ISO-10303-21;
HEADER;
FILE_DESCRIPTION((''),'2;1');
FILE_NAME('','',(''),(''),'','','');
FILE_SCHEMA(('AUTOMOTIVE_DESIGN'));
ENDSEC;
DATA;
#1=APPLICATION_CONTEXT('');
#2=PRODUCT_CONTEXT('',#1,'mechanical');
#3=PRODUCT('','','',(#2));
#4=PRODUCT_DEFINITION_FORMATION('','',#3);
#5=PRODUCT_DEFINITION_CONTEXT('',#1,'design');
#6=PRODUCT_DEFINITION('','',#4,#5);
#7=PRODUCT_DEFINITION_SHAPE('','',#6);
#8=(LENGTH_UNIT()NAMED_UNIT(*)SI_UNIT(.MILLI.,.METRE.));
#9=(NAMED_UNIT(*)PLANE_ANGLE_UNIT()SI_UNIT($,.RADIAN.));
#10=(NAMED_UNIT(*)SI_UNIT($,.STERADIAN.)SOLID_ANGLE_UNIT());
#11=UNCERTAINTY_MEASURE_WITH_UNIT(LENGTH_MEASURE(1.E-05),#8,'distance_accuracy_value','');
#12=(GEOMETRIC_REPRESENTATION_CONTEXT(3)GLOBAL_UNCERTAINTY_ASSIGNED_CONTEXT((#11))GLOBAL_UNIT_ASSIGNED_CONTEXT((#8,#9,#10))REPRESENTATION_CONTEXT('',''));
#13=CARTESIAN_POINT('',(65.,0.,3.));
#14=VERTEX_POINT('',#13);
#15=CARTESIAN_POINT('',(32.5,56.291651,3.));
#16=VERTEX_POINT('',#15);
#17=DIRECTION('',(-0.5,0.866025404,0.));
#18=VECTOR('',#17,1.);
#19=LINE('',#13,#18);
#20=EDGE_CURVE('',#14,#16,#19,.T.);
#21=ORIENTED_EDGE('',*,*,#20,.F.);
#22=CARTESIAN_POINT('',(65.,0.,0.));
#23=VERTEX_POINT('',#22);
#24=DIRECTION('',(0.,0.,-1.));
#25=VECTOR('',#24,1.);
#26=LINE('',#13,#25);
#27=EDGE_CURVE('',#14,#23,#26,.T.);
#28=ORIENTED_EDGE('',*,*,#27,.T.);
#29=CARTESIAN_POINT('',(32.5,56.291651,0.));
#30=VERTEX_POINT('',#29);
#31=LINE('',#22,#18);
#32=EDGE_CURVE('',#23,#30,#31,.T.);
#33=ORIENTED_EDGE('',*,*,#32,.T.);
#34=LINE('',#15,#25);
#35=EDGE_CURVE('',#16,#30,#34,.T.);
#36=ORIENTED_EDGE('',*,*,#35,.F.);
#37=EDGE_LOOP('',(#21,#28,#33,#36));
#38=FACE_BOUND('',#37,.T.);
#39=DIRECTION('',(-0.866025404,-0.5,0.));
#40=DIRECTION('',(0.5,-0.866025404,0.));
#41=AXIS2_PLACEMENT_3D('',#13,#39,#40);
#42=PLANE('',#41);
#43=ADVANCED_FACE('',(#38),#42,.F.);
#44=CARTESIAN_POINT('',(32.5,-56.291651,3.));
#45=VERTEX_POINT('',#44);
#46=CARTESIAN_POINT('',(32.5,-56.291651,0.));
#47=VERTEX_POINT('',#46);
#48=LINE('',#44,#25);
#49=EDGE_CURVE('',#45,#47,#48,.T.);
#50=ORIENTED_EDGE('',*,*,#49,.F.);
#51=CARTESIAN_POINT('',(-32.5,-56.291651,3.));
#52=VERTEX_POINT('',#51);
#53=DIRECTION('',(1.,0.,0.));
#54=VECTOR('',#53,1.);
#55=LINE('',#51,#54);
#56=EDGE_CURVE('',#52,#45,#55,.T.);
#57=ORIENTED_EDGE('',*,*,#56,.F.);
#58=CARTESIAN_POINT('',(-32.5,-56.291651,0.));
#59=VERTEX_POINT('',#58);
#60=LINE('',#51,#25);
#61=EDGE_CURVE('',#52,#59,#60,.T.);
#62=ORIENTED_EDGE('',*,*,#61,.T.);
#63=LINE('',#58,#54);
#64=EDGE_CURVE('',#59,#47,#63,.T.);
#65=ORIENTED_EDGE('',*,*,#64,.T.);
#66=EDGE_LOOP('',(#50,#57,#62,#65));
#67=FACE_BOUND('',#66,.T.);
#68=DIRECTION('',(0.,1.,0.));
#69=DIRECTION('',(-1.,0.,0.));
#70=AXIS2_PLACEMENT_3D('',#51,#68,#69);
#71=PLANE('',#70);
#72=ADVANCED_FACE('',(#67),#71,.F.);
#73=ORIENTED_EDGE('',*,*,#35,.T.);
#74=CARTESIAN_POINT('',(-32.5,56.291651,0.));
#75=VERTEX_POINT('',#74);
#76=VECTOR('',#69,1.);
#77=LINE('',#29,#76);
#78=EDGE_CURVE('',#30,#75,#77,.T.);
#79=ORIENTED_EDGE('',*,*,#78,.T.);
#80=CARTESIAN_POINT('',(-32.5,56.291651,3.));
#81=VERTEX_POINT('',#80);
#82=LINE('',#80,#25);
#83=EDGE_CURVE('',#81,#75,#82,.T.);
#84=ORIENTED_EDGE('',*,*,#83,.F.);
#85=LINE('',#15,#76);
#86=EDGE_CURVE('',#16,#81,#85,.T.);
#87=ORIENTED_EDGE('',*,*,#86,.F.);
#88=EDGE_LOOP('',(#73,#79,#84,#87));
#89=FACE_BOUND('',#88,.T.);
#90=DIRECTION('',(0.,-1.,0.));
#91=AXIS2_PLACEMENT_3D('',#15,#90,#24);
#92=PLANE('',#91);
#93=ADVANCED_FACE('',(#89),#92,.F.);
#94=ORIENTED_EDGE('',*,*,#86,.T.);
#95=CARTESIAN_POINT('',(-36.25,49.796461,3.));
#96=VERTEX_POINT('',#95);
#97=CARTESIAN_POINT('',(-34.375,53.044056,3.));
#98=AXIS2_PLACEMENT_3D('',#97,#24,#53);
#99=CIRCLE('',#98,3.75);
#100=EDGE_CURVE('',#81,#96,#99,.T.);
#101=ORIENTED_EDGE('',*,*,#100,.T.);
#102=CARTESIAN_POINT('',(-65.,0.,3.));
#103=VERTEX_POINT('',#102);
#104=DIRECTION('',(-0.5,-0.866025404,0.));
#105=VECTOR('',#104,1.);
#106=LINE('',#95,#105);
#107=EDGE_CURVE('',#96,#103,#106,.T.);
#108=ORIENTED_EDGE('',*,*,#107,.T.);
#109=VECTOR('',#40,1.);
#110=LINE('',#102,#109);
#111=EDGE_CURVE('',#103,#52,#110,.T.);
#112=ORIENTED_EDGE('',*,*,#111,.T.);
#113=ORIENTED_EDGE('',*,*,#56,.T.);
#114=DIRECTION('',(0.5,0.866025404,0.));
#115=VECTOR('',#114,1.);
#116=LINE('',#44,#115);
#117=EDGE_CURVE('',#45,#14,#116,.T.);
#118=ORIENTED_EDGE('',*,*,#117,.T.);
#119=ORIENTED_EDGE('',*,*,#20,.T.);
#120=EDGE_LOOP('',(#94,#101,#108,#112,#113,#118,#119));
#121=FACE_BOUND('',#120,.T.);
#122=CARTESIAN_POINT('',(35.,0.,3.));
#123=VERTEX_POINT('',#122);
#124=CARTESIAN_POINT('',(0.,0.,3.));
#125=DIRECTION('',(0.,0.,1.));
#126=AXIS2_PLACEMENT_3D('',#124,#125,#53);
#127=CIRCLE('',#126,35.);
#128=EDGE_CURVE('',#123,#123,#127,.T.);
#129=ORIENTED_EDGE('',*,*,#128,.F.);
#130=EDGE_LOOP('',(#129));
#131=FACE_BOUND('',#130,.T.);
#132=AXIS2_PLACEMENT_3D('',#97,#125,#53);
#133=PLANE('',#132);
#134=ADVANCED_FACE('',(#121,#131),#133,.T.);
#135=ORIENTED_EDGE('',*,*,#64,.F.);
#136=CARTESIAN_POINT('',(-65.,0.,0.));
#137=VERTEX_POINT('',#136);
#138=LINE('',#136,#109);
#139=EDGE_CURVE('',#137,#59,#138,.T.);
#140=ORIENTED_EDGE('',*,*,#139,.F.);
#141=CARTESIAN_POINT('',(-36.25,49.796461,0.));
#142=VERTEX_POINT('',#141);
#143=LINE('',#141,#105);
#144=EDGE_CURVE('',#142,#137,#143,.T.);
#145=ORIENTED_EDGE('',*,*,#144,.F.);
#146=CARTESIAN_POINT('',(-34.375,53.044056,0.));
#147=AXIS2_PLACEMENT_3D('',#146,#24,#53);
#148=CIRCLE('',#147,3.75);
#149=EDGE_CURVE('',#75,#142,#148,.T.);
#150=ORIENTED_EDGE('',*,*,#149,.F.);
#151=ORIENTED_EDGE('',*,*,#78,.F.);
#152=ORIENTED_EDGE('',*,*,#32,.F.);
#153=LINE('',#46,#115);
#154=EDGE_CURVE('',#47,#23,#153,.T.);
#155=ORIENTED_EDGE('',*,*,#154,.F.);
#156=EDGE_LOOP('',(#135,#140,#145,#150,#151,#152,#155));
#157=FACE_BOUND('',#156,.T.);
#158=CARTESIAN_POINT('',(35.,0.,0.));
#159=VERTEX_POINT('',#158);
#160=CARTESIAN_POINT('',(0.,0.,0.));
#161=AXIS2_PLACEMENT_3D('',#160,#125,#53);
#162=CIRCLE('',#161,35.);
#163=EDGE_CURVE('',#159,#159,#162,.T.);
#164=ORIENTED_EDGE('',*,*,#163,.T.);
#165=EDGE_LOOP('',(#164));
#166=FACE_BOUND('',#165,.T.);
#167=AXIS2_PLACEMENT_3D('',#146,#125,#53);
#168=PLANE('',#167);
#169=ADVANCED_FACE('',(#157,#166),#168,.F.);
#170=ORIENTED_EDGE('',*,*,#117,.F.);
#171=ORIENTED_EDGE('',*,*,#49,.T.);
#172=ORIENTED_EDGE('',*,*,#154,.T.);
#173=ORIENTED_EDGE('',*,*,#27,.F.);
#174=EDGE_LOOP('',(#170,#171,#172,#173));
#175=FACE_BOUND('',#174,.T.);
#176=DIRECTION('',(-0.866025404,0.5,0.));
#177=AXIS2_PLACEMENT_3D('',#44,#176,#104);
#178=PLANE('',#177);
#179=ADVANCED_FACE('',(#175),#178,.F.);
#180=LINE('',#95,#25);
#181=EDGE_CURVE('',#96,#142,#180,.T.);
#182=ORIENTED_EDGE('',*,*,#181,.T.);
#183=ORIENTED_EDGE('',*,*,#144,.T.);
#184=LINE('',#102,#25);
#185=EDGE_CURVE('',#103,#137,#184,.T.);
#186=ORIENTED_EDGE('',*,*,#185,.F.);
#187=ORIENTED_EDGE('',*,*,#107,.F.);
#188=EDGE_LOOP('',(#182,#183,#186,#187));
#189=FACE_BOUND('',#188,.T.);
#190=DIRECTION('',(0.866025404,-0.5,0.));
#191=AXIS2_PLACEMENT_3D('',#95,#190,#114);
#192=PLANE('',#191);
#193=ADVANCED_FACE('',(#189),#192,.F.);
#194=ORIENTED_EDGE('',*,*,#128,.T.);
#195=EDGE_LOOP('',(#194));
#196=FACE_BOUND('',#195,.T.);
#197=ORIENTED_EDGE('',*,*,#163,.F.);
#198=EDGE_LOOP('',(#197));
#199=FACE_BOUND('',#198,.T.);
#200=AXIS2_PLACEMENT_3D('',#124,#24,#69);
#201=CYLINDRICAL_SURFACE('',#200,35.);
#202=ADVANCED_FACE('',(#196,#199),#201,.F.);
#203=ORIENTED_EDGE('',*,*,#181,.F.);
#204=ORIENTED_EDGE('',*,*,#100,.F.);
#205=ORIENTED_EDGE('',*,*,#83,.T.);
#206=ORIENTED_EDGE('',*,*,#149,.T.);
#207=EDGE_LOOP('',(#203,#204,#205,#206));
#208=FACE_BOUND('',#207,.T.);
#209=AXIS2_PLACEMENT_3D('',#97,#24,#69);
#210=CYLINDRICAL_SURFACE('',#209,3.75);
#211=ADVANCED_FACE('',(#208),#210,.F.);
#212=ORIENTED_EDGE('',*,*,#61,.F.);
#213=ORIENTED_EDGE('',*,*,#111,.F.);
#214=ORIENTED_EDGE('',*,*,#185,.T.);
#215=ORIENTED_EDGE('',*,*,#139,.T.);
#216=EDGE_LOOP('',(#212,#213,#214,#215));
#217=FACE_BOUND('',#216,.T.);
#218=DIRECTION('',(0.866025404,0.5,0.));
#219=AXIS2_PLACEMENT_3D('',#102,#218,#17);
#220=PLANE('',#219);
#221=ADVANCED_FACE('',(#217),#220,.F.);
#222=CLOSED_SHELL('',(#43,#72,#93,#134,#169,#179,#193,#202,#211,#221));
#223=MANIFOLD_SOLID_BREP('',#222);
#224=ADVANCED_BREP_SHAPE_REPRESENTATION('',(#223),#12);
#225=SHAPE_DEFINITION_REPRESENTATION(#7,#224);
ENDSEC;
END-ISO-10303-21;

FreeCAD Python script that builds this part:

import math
import FreeCAD as App
import Part
import Sketcher

V = App.Vector
Q = App.Units.Quantity

doc = App.newDocument("Part")
body = doc.addObject("PartDesign::Body", "Body")

# Sketch on XY plane
sketch1 = body.newObject("Sketcher::SketchObject", "Sketch")
sketch1.AttachmentSupport = (doc.getObject("XY_Plane"), [""])
sketch1.MapMode = "FlatFace"
sketch1.addGeometry([
    Part.LineSegment(V(-65, 0, 0), V(-32.5, -56.3, 0)),  # 0
    Part.LineSegment(V(-32.5, -56.3, 0), V(32.5, -56.3, 0)),  # 1
    Part.LineSegment(V(32.5, -56.3, 0), V(65, 0, 0)),  # 2
    Part.LineSegment(V(65, 0, 0), V(32.5, 56.3, 0)),  # 3
    Part.LineSegment(V(32.5, 56.3, 0), V(-32.5, 56.3, 0)),  # 4
    Part.ArcOfCircle(Part.Circle(V(-34.4, 53, 0), V(0, 0, 1), 3.8), math.radians(-120), math.radians(60)),  # 5
    Part.LineSegment(V(-36.2, 49.8, 0), V(-65, 0, 0)),  # 6
    Part.Circle(V(0, 0, 0), V(0, 0, 1), 35),  # 7
], False)
sketch1.addConstraint([
    Sketcher.Constraint("Coincident", 0, 2, 1, 1),
    Sketcher.Constraint("Coincident", 1, 2, 2, 1),
    Sketcher.Constraint("Coincident", 2, 2, 3, 1),
    Sketcher.Constraint("Coincident", 3, 2, 4, 1),
    Sketcher.Constraint("Coincident", 4, 2, 5, 2),
    Sketcher.Constraint("Coincident", 5, 1, 6, 1),
    Sketcher.Constraint("Coincident", 6, 2, 0, 1),
    Sketcher.Constraint("Horizontal", 1),
    Sketcher.Constraint("Horizontal", 4),
    Sketcher.Constraint("Coincident", 7, 3, -1, 1),
    Sketcher.Constraint("Symmetric", 0, 2, 3, 2, -1, 1),
    Sketcher.Constraint("Symmetric", 2, 2, 6, 2, -1, 1),
    Sketcher.Constraint("PointOnObject", 2, 2, -1),
    Sketcher.Constraint("Parallel", 2, 6),
    Sketcher.Constraint("Vertical", 1, 2, 3, 2),
    Sketcher.Constraint("Vertical", 0, 2, 4, 2),
    Sketcher.Constraint("Diameter", 7, 70.0),
    Sketcher.Constraint("DistanceX", 1, 1, 1, 2, 65.0),
    Sketcher.Constraint("Angle", 0, Q("-60 deg")),
    Sketcher.Constraint("Radius", 5, 3.75),
    Sketcher.Constraint("Distance", 0, 65.0),
    Sketcher.Constraint("DistanceX", 5, 3, -1, 1, 34.375),
])
pad1 = body.newObject("PartDesign::Pad", "Pad")
pad1.Profile = sketch1
pad1.Length = 3

doc.recompute()
